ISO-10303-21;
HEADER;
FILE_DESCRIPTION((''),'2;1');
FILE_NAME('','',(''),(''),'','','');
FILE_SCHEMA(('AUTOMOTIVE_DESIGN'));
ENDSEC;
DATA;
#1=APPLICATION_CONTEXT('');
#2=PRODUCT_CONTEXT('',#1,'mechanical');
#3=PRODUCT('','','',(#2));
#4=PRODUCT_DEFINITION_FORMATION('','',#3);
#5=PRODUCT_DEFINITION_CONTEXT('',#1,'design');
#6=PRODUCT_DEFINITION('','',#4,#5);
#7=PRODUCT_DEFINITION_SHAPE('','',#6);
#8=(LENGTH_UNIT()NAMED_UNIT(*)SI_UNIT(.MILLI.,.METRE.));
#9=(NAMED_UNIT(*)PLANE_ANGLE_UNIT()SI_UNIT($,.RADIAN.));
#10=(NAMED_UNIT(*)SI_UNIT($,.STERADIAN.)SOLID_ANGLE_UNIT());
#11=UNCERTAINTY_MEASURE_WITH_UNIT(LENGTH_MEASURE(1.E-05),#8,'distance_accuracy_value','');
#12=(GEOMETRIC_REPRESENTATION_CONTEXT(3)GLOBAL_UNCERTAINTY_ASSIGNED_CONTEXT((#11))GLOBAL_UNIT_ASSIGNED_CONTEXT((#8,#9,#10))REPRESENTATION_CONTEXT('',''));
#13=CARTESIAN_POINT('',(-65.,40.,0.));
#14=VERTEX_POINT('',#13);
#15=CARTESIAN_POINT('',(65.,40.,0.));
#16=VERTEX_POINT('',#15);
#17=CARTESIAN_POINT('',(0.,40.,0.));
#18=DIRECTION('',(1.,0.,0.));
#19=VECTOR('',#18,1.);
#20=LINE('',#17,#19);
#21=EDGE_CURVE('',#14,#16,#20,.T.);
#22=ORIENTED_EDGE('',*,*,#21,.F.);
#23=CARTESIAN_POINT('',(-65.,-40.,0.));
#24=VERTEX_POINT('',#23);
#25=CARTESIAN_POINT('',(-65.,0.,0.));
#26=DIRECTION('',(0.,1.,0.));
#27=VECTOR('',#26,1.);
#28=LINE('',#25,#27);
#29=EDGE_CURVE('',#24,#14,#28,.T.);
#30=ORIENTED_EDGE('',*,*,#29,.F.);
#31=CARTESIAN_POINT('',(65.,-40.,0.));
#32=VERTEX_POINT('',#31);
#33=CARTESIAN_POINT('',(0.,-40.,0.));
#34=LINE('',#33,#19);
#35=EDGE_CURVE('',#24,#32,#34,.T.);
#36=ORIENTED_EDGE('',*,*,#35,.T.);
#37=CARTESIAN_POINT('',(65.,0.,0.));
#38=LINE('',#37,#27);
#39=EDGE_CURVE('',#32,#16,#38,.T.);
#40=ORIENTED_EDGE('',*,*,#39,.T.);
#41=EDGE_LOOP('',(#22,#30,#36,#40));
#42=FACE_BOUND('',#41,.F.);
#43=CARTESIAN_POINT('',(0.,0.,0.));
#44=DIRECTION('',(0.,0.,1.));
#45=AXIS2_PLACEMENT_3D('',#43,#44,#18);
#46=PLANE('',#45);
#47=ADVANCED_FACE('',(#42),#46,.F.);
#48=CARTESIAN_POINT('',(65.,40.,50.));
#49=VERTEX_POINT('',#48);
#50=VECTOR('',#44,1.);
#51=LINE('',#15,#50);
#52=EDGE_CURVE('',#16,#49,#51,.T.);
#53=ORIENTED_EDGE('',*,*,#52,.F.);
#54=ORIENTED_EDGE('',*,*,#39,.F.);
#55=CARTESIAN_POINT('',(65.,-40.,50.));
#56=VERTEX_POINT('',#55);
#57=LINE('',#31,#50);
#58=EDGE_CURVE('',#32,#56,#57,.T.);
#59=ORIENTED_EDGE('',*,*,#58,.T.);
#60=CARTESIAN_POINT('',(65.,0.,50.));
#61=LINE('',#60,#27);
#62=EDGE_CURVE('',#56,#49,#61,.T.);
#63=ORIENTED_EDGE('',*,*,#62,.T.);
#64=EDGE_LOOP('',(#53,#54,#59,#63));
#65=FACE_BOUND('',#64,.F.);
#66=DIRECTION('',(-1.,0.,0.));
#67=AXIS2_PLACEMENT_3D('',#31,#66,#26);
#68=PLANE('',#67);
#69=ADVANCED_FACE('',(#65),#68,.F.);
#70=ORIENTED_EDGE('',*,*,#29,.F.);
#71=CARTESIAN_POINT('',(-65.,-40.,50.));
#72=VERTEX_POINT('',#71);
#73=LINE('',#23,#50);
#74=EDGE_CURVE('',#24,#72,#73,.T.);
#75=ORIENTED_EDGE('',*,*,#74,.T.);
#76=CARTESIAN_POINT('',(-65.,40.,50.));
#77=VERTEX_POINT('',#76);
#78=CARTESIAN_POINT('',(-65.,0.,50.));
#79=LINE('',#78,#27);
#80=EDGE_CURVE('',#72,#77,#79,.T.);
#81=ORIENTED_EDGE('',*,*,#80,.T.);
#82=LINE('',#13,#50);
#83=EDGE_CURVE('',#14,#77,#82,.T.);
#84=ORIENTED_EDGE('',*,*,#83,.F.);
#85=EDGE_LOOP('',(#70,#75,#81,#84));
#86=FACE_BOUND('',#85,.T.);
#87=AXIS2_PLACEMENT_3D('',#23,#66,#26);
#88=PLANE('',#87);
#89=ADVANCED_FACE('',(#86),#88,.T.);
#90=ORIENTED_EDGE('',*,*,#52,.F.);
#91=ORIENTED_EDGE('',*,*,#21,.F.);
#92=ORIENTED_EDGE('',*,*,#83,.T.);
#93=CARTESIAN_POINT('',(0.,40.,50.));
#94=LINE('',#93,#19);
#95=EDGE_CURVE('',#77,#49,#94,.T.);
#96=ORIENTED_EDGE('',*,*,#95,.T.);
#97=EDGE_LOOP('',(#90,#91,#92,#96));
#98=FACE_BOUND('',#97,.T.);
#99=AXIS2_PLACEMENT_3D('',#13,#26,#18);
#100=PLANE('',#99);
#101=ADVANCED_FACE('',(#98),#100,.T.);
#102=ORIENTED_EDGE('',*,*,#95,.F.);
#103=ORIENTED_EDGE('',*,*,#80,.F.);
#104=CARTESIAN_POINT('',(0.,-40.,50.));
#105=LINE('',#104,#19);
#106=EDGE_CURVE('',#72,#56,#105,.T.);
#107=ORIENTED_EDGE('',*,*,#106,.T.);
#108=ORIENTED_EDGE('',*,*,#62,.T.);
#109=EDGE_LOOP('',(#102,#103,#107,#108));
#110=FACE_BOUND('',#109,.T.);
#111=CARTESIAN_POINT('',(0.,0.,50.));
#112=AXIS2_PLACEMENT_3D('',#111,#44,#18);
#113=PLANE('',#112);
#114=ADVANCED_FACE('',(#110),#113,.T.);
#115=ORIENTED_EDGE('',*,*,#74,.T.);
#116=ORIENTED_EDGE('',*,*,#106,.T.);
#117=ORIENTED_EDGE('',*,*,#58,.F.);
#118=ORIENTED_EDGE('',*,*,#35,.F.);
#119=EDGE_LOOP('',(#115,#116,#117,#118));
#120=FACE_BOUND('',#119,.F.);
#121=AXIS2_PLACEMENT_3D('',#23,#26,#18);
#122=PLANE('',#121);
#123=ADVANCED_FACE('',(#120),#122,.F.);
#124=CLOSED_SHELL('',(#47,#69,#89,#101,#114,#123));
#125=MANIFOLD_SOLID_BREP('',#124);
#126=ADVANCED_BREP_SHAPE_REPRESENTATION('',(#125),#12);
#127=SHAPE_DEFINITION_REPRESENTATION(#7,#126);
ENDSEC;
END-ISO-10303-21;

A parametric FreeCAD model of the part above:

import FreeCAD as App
import Part
import Sketcher


def add_polygon(sketch, points):
    """Adds a closed chain of lines whose ends are joined by coincident constraints."""
    first, n = sketch.GeometryCount, len(points)
    for a, b in zip(points, points[1:] + points[:1]):
        sketch.addGeometry(Part.LineSegment(App.Vector(*a, 0), App.Vector(*b, 0)), False)
    for i in range(n):
        sketch.addConstraint(Sketcher.Constraint("Coincident", first + i, 2, first + (i + 1) % n, 1))

doc = App.newDocument("Part")
body = doc.addObject("PartDesign::Body", "Body")

# Sketch on XY plane
sketch1 = body.newObject("Sketcher::SketchObject", "Sketch")
sketch1.AttachmentSupport = (doc.getObject("XY_Plane"), [""])
sketch1.MapMode = "FlatFace"
add_polygon(sketch1, [(-65, 40), (-65, -40), (65, -40), (65, 40)])  # lines 0-3
sketch1.addConstraint(Sketcher.Constraint("Vertical", 0))
sketch1.addConstraint(Sketcher.Constraint("Horizontal", 1))
sketch1.addConstraint(Sketcher.Constraint("Vertical", 2))
sketch1.addConstraint(Sketcher.Constraint("Horizontal", 3))
sketch1.addConstraint(Sketcher.Constraint("Symmetric", 0, 2, 2, 2, -1, 1))
sketch1.addConstraint(Sketcher.Constraint("DistanceX", 1, 1, 1, 2, 130.0))
sketch1.addConstraint(Sketcher.Constraint("DistanceY", 0, 2, 0, 1, 80.0))
pad1 = body.newObject("PartDesign::Pad", "Pad")
pad1.Profile = sketch1
pad1.Length = 50

doc.recompute()
